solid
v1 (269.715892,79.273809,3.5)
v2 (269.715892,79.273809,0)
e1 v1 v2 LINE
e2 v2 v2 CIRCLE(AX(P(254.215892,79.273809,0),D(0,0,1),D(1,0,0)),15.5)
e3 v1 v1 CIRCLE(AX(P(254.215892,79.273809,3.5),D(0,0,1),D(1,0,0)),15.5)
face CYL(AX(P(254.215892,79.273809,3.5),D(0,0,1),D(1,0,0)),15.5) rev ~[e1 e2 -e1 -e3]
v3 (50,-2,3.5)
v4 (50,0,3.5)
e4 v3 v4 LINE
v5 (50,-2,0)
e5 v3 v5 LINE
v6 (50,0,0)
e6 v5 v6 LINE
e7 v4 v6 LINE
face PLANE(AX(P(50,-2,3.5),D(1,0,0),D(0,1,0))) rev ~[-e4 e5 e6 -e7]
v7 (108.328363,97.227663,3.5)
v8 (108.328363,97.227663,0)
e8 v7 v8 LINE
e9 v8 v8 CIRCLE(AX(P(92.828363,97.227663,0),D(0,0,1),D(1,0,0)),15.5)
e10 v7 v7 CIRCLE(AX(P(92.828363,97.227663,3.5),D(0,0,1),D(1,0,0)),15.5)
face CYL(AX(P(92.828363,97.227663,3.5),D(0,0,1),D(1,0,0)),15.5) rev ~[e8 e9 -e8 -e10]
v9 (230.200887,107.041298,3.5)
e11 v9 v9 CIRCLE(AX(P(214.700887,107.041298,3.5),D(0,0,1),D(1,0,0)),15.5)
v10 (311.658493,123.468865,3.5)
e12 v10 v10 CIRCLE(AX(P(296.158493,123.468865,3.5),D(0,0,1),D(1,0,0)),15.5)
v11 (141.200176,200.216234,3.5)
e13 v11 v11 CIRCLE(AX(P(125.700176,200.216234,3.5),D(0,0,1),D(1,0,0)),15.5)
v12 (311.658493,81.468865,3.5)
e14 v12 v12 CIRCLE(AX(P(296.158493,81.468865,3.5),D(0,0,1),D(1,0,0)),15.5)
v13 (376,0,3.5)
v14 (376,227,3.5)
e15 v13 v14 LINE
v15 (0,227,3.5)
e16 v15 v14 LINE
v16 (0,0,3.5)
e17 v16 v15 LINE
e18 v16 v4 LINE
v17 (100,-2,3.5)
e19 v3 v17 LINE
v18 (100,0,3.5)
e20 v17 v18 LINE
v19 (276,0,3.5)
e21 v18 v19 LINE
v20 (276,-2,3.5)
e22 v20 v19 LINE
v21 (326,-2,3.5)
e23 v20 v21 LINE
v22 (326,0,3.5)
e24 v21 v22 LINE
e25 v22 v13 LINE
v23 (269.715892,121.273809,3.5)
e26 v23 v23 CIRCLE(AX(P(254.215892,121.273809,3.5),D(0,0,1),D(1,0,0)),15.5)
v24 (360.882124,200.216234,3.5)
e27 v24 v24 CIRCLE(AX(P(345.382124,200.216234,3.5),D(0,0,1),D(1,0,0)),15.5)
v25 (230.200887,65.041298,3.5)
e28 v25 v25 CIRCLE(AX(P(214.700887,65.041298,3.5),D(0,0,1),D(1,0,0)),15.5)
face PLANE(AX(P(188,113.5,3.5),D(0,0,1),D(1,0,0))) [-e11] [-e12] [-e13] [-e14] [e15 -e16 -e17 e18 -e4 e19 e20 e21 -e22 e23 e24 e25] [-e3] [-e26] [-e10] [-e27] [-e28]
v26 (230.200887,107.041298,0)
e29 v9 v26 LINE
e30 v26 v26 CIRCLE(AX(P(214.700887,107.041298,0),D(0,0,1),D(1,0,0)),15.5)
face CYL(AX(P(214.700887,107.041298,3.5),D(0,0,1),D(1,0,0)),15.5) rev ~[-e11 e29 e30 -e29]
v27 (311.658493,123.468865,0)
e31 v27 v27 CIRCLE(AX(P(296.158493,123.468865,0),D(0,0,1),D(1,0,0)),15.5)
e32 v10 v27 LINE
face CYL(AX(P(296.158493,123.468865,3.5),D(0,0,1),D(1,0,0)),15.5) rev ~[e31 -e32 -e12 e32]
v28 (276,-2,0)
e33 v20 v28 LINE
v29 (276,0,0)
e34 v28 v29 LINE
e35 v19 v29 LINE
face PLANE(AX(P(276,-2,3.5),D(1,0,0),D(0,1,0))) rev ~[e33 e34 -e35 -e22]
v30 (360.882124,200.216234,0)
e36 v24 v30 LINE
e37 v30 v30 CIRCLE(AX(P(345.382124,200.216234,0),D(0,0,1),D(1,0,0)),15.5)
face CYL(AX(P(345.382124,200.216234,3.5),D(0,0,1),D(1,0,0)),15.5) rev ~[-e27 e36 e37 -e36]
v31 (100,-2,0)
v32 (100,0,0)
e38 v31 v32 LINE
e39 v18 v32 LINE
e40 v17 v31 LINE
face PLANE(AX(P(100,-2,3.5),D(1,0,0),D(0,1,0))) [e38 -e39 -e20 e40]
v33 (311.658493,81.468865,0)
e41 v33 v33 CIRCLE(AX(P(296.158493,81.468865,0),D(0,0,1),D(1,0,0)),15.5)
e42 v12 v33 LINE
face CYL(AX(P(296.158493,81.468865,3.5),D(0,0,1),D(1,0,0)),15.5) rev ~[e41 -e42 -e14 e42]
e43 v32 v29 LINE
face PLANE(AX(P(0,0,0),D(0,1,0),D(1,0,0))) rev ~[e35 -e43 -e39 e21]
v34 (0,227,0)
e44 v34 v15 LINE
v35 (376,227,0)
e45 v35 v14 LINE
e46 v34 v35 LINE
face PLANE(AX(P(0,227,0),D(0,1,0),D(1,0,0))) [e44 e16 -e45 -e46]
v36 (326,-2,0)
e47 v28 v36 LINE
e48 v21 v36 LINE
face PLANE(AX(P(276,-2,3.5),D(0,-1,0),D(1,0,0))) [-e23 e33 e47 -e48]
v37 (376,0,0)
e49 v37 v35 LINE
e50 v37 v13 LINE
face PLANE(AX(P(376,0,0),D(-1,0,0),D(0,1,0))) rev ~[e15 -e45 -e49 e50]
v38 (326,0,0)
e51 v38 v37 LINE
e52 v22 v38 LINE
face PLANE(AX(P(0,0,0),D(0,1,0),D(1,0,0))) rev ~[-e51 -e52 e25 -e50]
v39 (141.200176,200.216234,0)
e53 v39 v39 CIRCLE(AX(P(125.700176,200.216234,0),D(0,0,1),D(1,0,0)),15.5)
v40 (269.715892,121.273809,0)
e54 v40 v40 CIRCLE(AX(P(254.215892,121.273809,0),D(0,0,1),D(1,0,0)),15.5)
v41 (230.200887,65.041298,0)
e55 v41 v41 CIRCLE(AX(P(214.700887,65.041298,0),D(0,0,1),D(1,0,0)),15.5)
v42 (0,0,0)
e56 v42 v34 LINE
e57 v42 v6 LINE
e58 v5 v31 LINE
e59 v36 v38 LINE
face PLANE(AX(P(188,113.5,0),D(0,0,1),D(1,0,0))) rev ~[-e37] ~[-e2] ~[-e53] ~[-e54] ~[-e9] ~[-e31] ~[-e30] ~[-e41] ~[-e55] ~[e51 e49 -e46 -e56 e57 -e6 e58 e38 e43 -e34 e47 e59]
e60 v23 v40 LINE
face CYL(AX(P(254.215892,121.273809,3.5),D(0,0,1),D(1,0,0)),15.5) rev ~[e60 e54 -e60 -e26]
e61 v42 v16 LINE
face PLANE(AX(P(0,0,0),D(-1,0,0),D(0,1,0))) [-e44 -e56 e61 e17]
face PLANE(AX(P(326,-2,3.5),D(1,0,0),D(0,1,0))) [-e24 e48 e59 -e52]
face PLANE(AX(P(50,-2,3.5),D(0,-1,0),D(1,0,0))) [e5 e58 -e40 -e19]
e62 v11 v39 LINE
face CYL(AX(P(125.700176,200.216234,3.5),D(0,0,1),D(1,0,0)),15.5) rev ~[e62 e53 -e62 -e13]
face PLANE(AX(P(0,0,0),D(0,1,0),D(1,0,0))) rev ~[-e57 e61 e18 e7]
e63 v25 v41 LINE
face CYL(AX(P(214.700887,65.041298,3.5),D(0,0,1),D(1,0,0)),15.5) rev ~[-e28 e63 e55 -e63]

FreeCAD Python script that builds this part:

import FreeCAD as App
import Part
import Sketcher

V = App.Vector
Q = App.Units.Quantity


def add_polygon(sketch, points):
    """Adds a closed chain of lines whose ends are joined by coincident constraints."""
    first, n = sketch.GeometryCount, len(points)
    for a, b in zip(points, points[1:] + points[:1]):
        sketch.addGeometry(Part.LineSegment(App.Vector(*a, 0), App.Vector(*b, 0)), False)
    for i in range(n):
        sketch.addConstraint(Sketcher.Constraint("Coincident", first + i, 2, first + (i + 1) % n, 1))

doc = App.newDocument("Part")
params = doc.addObject("Spreadsheet::Sheet", "Params")
for row, (alias, value) in enumerate([
    ("sketch1_width", "376 mm"),
    ("sketch1_height", "227 mm"),
    ("pad1_length", "3.5 mm"),
    ("sketch2_diameter", "31 mm"),
    ("pocket1_length", "25 mm"),
    ("sketch3_width", "50 mm"),
    ("sketch3_height", "2 mm"),
    ("pad2_length", "3.5 mm"),
], start=1):
    params.set(f"A{row}", alias)
    params.set(f"B{row}", "=" + value)
    params.setAlias(f"B{row}", alias)

body = doc.addObject("PartDesign::Body", "Body")

# Sketch on XY plane
sketch1 = body.newObject("Sketcher::SketchObject", "Sketch")
sketch1.AttachmentSupport = (doc.getObject("XY_Plane"), [""])
sketch1.MapMode = "FlatFace"
add_polygon(sketch1, [(0, 227), (0, 0), (376, 0), (376, 227)])  # lines 0-3
sketch1.addConstraint([
    Sketcher.Constraint("Vertical", 0),
    Sketcher.Constraint("Horizontal", 1),
    Sketcher.Constraint("Vertical", 2),
    Sketcher.Constraint("Horizontal", 3),
    Sketcher.Constraint("Coincident", 0, 2, -1, 1),
    Sketcher.Constraint("DistanceX", 1, 1, 1, 2, Q("376 mm")),
    Sketcher.Constraint("DistanceY", 0, 2, 0, 1, Q("227 mm")),
])
sketch1.setExpression("Constraints[9]", "Params.sketch1_width")
sketch1.setExpression("Constraints[10]", "Params.sketch1_height")
pad1 = body.newObject("PartDesign::Pad", "Pad")
pad1.Profile = sketch1
pad1.setExpression("Length", "Params.pad1_length")

# Sketch on XY plane
sketch2 = body.newObject("Sketcher::SketchObject", "Sketch001")
sketch2.AttachmentSupport = (doc.getObject("XY_Plane"), [""])
sketch2.MapMode = "FlatFace"
sketch2.AttachmentOffset = App.Placement(V(0, 0, 3.5), App.Rotation())
sketch2.addGeometry([
    Part.Circle(V(93, 97, 0), V(0, 0, 1), 16),  # 0
    Part.Circle(V(126, 200, 0), V(0, 0, 1), 16),  # 1
    Part.Circle(V(215, 107, 0), V(0, 0, 1), 16),  # 2
    Part.Circle(V(215, 65, 0), V(0, 0, 1), 16),  # 3
    Part.Circle(V(254, 79, 0), V(0, 0, 1), 16),  # 4
    Part.Circle(V(254, 121, 0), V(0, 0, 1), 16),  # 5
    Part.Circle(V(296, 123, 0), V(0, 0, 1), 16),  # 6
    Part.Circle(V(296, 81, 0), V(0, 0, 1), 16),  # 7
    Part.Circle(V(345, 200, 0), V(0, 0, 1), 16),  # 8
], False)
sketch2.addConstraint([
    Sketcher.Constraint("Equal", 0, 1),
    Sketcher.Constraint("Equal", 1, 2),
    Sketcher.Constraint("Equal", 2, 3),
    Sketcher.Constraint("Equal", 3, 4),
    Sketcher.Constraint("Equal", 4, 5),
    Sketcher.Constraint("Equal", 5, 6),
    Sketcher.Constraint("Equal", 6, 7),
    Sketcher.Constraint("Equal", 7, 8),
    Sketcher.Constraint("Horizontal", 1, 3, 8, 3),
    Sketcher.Constraint("Vertical", 2, 3, 3, 3),
    Sketcher.Constraint("Vertical", 4, 3, 5, 3),
    Sketcher.Constraint("Vertical", 6, 3, 7, 3),
    Sketcher.Constraint("Diameter", 0, Q("31 mm")),
    Sketcher.Constraint("DistanceY", 3, 3, 2, 3, Q("42 mm")),
    Sketcher.Constraint("DistanceY", 4, 3, 5, 3, Q("42 mm")),
    Sketcher.Constraint("DistanceY", 7, 3, 6, 3, Q("42 mm")),
    Sketcher.Constraint("DistanceX", 5, 3, 6, 3, Q("41.942601 mm")),
    Sketcher.Constraint("DistanceX", -1, 1, 4, 3, Q("254.215892 mm")),
    Sketcher.Constraint("DistanceY", -1, 1, 4, 3, Q("79.273809 mm")),
    Sketcher.Constraint("DistanceY", 0, 3, 1, 3, Q("102.988571 mm")),
    Sketcher.Constraint("DistanceX", 1, 3, 2, 3, Q("89.000711 mm")),
    Sketcher.Constraint("DistanceY", 3, 3, 4, 3, Q("14.232511 mm")),
    Sketcher.Constraint("DistanceX", 0, 3, 4, 3, Q("161.387529 mm")),
    Sketcher.Constraint("DistanceY", 6, 3, 1, 3, Q("76.747369 mm")),
    Sketcher.Constraint("DistanceX", 6, 3, 8, 3, Q("49.223631 mm")),
    Sketcher.Constraint("DistanceY", -1, 1, 0, 3, Q("97.227663 mm")),
    Sketcher.Constraint("DistanceX", -1, 1, 1, 3, Q("125.700176 mm")),
])
sketch2.setExpression("Constraints[12]", "Params.sketch2_diameter")
pocket1 = body.newObject("PartDesign::Pocket", "Pocket")
pocket1.Profile = sketch2
pocket1.setExpression("Length", "Params.pocket1_length")

# Sketch on XY plane
sketch3 = body.newObject("Sketcher::SketchObject", "Sketch002")
sketch3.AttachmentSupport = (doc.getObject("XY_Plane"), [""])
sketch3.MapMode = "FlatFace"
sketch3.AttachmentOffset = App.Placement(V(0, 0, 3.5), App.Rotation())
add_polygon(sketch3, [(50, 0), (50, -2), (100, -2), (100, 0)])  # lines 0-3
add_polygon(sketch3, [(276, 0), (276, -2), (326, -2), (326, 0)])  # lines 4-7
sketch3.addConstraint([
    Sketcher.Constraint("Vertical", 0),
    Sketcher.Constraint("Horizontal", 1),
    Sketcher.Constraint("Vertical", 2),
    Sketcher.Constraint("Horizontal", 3),
    Sketcher.Constraint("Vertical", 4),
    Sketcher.Constraint("Horizontal", 5),
    Sketcher.Constraint("Vertical", 6),
    Sketcher.Constraint("Horizontal", 7),
    Sketcher.Constraint("PointOnObject", 2, 2, -1),
    Sketcher.Constraint("PointOnObject", 6, 2, -1),
    Sketcher.Constraint("Horizontal", 1, 2, 4, 2),
    Sketcher.Constraint("Equal", 3, 5),
    Sketcher.Constraint("DistanceX", 1, 1, 1, 2, Q("50 mm")),
    Sketcher.Constraint("DistanceY", 0, 2, 0, 1, Q("2 mm")),
    Sketcher.Constraint("DistanceX", -1, 1, 0, 2, Q("50 mm")),
    Sketcher.Constraint("DistanceX", -1, 1, 4, 2, Q("276 mm")),
])
sketch3.setExpression("Constraints[20]", "Params.sketch3_width")
sketch3.setExpression("Constraints[21]", "Params.sketch3_height")
pad2 = body.newObject("PartDesign::Pad", "Pad001")
pad2.Profile = sketch3
pad2.setExpression("Length", "Params.pad2_length")
pad2.Reversed = True

doc.recompute()
